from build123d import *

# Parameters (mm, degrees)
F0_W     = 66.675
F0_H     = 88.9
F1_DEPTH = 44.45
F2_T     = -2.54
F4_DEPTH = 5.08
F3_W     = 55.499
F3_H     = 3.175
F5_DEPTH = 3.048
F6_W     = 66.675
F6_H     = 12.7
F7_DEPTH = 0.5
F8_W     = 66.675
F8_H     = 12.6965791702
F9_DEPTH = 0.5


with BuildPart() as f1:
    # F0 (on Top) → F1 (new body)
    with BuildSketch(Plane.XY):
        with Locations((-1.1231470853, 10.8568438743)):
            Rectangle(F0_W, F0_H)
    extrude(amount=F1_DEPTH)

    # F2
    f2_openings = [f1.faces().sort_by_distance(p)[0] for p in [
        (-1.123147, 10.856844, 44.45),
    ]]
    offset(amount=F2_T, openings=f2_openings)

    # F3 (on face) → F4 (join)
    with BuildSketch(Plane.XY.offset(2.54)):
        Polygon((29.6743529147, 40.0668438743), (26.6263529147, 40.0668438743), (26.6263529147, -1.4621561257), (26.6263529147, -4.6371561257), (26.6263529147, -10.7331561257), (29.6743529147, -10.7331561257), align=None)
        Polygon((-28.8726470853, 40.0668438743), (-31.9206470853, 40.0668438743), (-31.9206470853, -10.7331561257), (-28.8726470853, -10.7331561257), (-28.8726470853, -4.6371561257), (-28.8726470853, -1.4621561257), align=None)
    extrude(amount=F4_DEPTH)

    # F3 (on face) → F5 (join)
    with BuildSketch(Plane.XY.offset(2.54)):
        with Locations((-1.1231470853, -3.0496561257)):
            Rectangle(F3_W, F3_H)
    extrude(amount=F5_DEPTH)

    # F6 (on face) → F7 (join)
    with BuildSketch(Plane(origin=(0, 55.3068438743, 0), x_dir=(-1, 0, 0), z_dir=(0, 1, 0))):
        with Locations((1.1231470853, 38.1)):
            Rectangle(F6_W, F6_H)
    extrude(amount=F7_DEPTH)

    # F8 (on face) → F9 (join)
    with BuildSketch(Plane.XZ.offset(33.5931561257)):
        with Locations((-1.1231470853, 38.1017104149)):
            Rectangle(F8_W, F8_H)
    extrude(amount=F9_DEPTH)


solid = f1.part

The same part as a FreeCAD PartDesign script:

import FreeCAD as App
import Part
import Sketcher
Q = App.Units.Quantity


def faces_at(feature, points):
    """Names of the faces that lie closest to the given points."""
    faces = feature.Shape.Faces
    near = lambda p: min(range(len(faces)), key=lambda i: faces[i].distToShape(Part.Vertex(*p))[0])
    return sorted({f"Face{near(p) + 1}" for p in points})

doc = App.newDocument("Part")
body = doc.addObject("PartDesign::Body", "Body")

# Sketch on XY plane
sketch1 = body.newObject("Sketcher::SketchObject", "Sketch")
sketch1.AttachmentSupport = (doc.getObject("XY_Plane"), [""])
sketch1.MapMode = "FlatFace"
sketch1.addGeometry(Part.LineSegment(App.Vector(-34, 55, 0), App.Vector(-34, -34, 0)), False)
sketch1.addGeometry(Part.LineSegment(App.Vector(-34, -34, 0), App.Vector(32, -34, 0)), False)
sketch1.addGeometry(Part.LineSegment(App.Vector(32, -34, 0), App.Vector(32, 55, 0)), False)
sketch1.addGeometry(Part.LineSegment(App.Vector(32, 55, 0), App.Vector(-34, 55, 0)), False)
sketch1.addConstraint(Sketcher.Constraint("Coincident", 0, 2, 1, 1))
sketch1.addConstraint(Sketcher.Constraint("Coincident", 1, 2, 2, 1))
sketch1.addConstraint(Sketcher.Constraint("Coincident", 2, 2, 3, 1))
sketch1.addConstraint(Sketcher.Constraint("Coincident", 3, 2, 0, 1))
sketch1.addConstraint(Sketcher.Constraint("Vertical", 0))
sketch1.addConstraint(Sketcher.Constraint("Horizontal", 1))
sketch1.addConstraint(Sketcher.Constraint("Vertical", 2))
sketch1.addConstraint(Sketcher.Constraint("Horizontal", 3))
sketch1.addConstraint(Sketcher.Constraint("DistanceY", 0, 2, 0, 1, Q("3.5 in")))
sketch1.addConstraint(Sketcher.Constraint("DistanceX", 1, 1, 1, 2, Q("2.625 in")))
sketch1.addConstraint(Sketcher.Constraint("DistanceX", 0, 2, -1, 1, Q("34.460647 mm")))
sketch1.addConstraint(Sketcher.Constraint("DistanceY", 0, 2, -1, 1, Q("33.593156 mm")))
pad1 = body.newObject("PartDesign::Pad", "Pad")
pad1.Profile = sketch1
pad1.Length = Q("1.75 in")
doc.recompute()

thickness = body.newObject("PartDesign::Thickness", "Thickness")
thickness.Base = (pad1, faces_at(pad1, [(-1.123, 10.857, 44.45)]))
thickness.Value = Q("0.1 in")
thickness.Reversed = True
thickness.Join = "Arc"

# Sketch on XY plane
sketch2 = body.newObject("Sketcher::SketchObject", "Sketch001")
sketch2.AttachmentSupport = (doc.getObject("XY_Plane"), [""])
sketch2.MapMode = "FlatFace"
sketch2.AttachmentOffset = App.Placement(App.Vector(0, 0, 0.1 * 25.4), App.Rotation())
sketch2.addGeometry(Part.LineSegment(App.Vector(29.7, 40.1, 0), App.Vector(26.6, 40.1, 0)), False)
sketch2.addGeometry(Part.LineSegment(App.Vector(26.6, 40.1, 0), App.Vector(26.6, -10.7, 0)), False)
sketch2.addGeometry(Part.LineSegment(App.Vector(26.6, -10.7, 0), App.Vector(29.7, -10.7, 0)), False)
sketch2.addGeometry(Part.LineSegment(App.Vector(29.7, -10.7, 0), App.Vector(29.7, 40.1, 0)), False)
sketch2.addGeometry(Part.LineSegment(App.Vector(-28.9, 40.1, 0), App.Vector(-31.9, 40.1, 0)), False)
sketch2.addGeometry(Part.LineSegment(App.Vector(-31.9, 40.1, 0), App.Vector(-31.9, -10.7, 0)), False)
sketch2.addGeometry(Part.LineSegment(App.Vector(-31.9, -10.7, 0), App.Vector(-28.9, -10.7, 0)), False)
sketch2.addGeometry(Part.LineSegment(App.Vector(-28.9, -10.7, 0), App.Vector(-28.9, 40.1, 0)), False)
sketch2.addConstraint(Sketcher.Constraint("Coincident", 0, 2, 1, 1))
sketch2.addConstraint(Sketcher.Constraint("Coincident", 1, 2, 2, 1))
sketch2.addConstraint(Sketcher.Constraint("Coincident", 2, 2, 3, 1))
sketch2.addConstraint(Sketcher.Constraint("Coincident", 3, 2, 0, 1))
sketch2.addConstraint(Sketcher.Constraint("Coincident", 4, 2, 5, 1))
sketch2.addConstraint(Sketcher.Constraint("Coincident", 5, 2, 6, 1))
sketch2.addConstraint(Sketcher.Constraint("Coincident", 6, 2, 7, 1))
sketch2.addConstraint(Sketcher.Constraint("Coincident", 7, 2, 4, 1))
sketch2.addConstraint(Sketcher.Constraint("Horizontal", 0))
sketch2.addConstraint(Sketcher.Constraint("Vertical", 1))
sketch2.addConstraint(Sketcher.Constraint("Horizontal", 2))
sketch2.addConstraint(Sketcher.Constraint("Vertical", 3))
sketch2.addConstraint(Sketcher.Constraint("Horizontal", 4))
sketch2.addConstraint(Sketcher.Constraint("Vertical", 5))
sketch2.addConstraint(Sketcher.Constraint("Horizontal", 6))
sketch2.addConstraint(Sketcher.Constraint("Vertical", 7))
sketch2.addConstraint(Sketcher.Constraint("Horizontal", 3, 2, 4, 2))
sketch2.addConstraint(Sketcher.Constraint("Horizontal", 2, 2, 5, 2))
sketch2.addConstraint(Sketcher.Constraint("Equal", 2, 4))
sketch2.addConstraint(Sketcher.Constraint("DistanceY", 1, 2, 1, 1, Q("2 in")))
sketch2.addConstraint(Sketcher.Constraint("DistanceX", 0, 2, 0, 1, Q("0.12 in")))
sketch2.addConstraint(Sketcher.Constraint("DistanceX", 4, 2, 0, 2, Q("2.305 in")))
sketch2.addConstraint(Sketcher.Constraint("DistanceX", -1, 1, 0, 2, Q("26.626353 mm")))
sketch2.addConstraint(Sketcher.Constraint("DistanceY", -1, 1, 0, 2, Q("40.066844 mm")))
pad2 = body.newObject("PartDesign::Pad", "Pad001")
pad2.Profile = sketch2
pad2.Length = Q("0.2 in")

# Sketch on XY plane
sketch3 = body.newObject("Sketcher::SketchObject", "Sketch002")
sketch3.AttachmentSupport = (doc.getObject("XY_Plane"), [""])
sketch3.MapMode = "FlatFace"
sketch3.AttachmentOffset = App.Placement(App.Vector(0, 0, 0.1 * 25.4), App.Rotation())
sketch3.addGeometry(Part.LineSegment(App.Vector(-28.9, -1.5, 0), App.Vector(-28.9, -4.6, 0)), False)
sketch3.addGeometry(Part.LineSegment(App.Vector(-28.9, -4.6, 0), App.Vector(26.6, -4.6, 0)), False)
sketch3.addGeometry(Part.LineSegment(App.Vector(26.6, -4.6, 0), App.Vector(26.6, -1.5, 0)), False)
sketch3.addGeometry(Part.LineSegment(App.Vector(26.6, -1.5, 0), App.Vector(-28.9, -1.5, 0)), False)
sketch3.addConstraint(Sketcher.Constraint("Coincident", 0, 2, 1, 1))
sketch3.addConstraint(Sketcher.Constraint("Coincident", 1, 2, 2, 1))
sketch3.addConstraint(Sketcher.Constraint("Coincident", 2, 2, 3, 1))
sketch3.addConstraint(Sketcher.Constraint("Coincident", 3, 2, 0, 1))
sketch3.addConstraint(Sketcher.Constraint("Vertical", 0))
sketch3.addConstraint(Sketcher.Constraint("Horizontal", 1))
sketch3.addConstraint(Sketcher.Constraint("Vertical", 2))
sketch3.addConstraint(Sketcher.Constraint("Horizontal", 3))
sketch3.addConstraint(Sketcher.Constraint("DistanceX", 1, 1, 1, 2, Q("2.185 in")))
sketch3.addConstraint(Sketcher.Constraint("DistanceY", 0, 2, 0, 1, Q("0.125 in")))
sketch3.addConstraint(Sketcher.Constraint("DistanceX", 0, 2, -1, 1, Q("28.872647 mm")))
sketch3.addConstraint(Sketcher.Constraint("DistanceY", 0, 2, -1, 1, Q("4.637156 mm")))
pad3 = body.newObject("PartDesign::Pad", "Pad002")
pad3.Profile = sketch3
pad3.Length = Q("0.12 in")

# Sketch on XZ plane
sketch4 = body.newObject("Sketcher::SketchObject", "Sketch003")
sketch4.AttachmentSupport = (doc.getObject("XZ_Plane"), [""])
sketch4.MapMode = "FlatFace"
sketch4.AttachmentOffset = App.Placement(App.Vector(0, 0, -55.306844), App.Rotation())
sketch4.addGeometry(Part.LineSegment(App.Vector(32, 44, 0), App.Vector(32, 32, 0)), False)
sketch4.addGeometry(Part.LineSegment(App.Vector(32, 32, 0), App.Vector(-34, 32, 0)), False)
sketch4.addGeometry(Part.LineSegment(App.Vector(-34, 32, 0), App.Vector(-34, 44, 0)), False)
sketch4.addGeometry(Part.LineSegment(App.Vector(-34, 44, 0), App.Vector(32, 44, 0)), False)
sketch4.addConstraint(Sketcher.Constraint("Coincident", 0, 2, 1, 1))
sketch4.addConstraint(Sketcher.Constraint("Coincident", 1, 2, 2, 1))
sketch4.addConstraint(Sketcher.Constraint("Coincident", 2, 2, 3, 1))
sketch4.addConstraint(Sketcher.Constraint("Coincident", 3, 2, 0, 1))
sketch4.addConstraint(Sketcher.Constraint("Vertical", 0))
sketch4.addConstraint(Sketcher.Constraint("Horizontal", 1))
sketch4.addConstraint(Sketcher.Constraint("Vertical", 2))
sketch4.addConstraint(Sketcher.Constraint("Horizontal", 3))
sketch4.addConstraint(Sketcher.Constraint("DistanceY", 0, 2, 0, 1, Q("0.5 in")))
sketch4.addConstraint(Sketcher.Constraint("DistanceX", 1, 2, 1, 1, Q("2.625 in")))
sketch4.addConstraint(Sketcher.Constraint("DistanceY", -1, 1, 0, 2, Q("1.25 in")))
sketch4.addConstraint(Sketcher.Constraint("DistanceX", -1, 1, 0, 2, Q("32.214353 mm")))
pad4 = body.newObject("PartDesign::Pad", "Pad003")
pad4.Profile = sketch4
pad4.Length = 0.5
pad4.Reversed = True

# Sketch on XZ plane
sketch5 = body.newObject("Sketcher::SketchObject", "Sketch004")
sketch5.AttachmentSupport = (doc.getObject("XZ_Plane"), [""])
sketch5.MapMode = "FlatFace"
sketch5.AttachmentOffset = App.Placement(App.Vector(0, 0, 33.593156), App.Rotation())
sketch5.addGeometry(Part.LineSegment(App.Vector(-34, 44, 0), App.Vector(-34, 32, 0)), False)
sketch5.addGeometry(Part.LineSegment(App.Vector(-34, 32, 0), App.Vector(32, 32, 0)), False)
sketch5.addGeometry(Part.LineSegment(App.Vector(32, 32, 0), App.Vector(32, 44, 0)), False)
sketch5.addGeometry(Part.LineSegment(App.Vector(32, 44, 0), App.Vector(-34, 44, 0)), False)
sketch5.addConstraint(Sketcher.Constraint("Coincident", 0, 2, 1, 1))
sketch5.addConstraint(Sketcher.Constraint("Coincident", 1, 2, 2, 1))
sketch5.addConstraint(Sketcher.Constraint("Coincident", 2, 2, 3, 1))
sketch5.addConstraint(Sketcher.Constraint("Coincident", 3, 2, 0, 1))
sketch5.addConstraint(Sketcher.Constraint("Vertical", 0))
sketch5.addConstraint(Sketcher.Constraint("Horizontal", 1))
sketch5.addConstraint(Sketcher.Constraint("Vertical", 2))
sketch5.addConstraint(Sketcher.Constraint("Horizontal", 3))
sketch5.addConstraint(Sketcher.Constraint("DistanceX", 1, 1, 1, 2, Q("2.625 in")))
sketch5.addConstraint(Sketcher.Constraint("DistanceY", -1, 1, 2, 2, Q("1.75 in")))
sketch5.addConstraint(Sketcher.Constraint("DistanceY", 0, 2, 0, 1, Q("12.696579 mm")))
sketch5.addConstraint(Sketcher.Constraint("DistanceX", 0, 2, -1, 1, Q("34.460647 mm")))
pad5 = body.newObject("PartDesign::Pad", "Pad004")
pad5.Profile = sketch5
pad5.Length = 0.5

doc.recompute()
